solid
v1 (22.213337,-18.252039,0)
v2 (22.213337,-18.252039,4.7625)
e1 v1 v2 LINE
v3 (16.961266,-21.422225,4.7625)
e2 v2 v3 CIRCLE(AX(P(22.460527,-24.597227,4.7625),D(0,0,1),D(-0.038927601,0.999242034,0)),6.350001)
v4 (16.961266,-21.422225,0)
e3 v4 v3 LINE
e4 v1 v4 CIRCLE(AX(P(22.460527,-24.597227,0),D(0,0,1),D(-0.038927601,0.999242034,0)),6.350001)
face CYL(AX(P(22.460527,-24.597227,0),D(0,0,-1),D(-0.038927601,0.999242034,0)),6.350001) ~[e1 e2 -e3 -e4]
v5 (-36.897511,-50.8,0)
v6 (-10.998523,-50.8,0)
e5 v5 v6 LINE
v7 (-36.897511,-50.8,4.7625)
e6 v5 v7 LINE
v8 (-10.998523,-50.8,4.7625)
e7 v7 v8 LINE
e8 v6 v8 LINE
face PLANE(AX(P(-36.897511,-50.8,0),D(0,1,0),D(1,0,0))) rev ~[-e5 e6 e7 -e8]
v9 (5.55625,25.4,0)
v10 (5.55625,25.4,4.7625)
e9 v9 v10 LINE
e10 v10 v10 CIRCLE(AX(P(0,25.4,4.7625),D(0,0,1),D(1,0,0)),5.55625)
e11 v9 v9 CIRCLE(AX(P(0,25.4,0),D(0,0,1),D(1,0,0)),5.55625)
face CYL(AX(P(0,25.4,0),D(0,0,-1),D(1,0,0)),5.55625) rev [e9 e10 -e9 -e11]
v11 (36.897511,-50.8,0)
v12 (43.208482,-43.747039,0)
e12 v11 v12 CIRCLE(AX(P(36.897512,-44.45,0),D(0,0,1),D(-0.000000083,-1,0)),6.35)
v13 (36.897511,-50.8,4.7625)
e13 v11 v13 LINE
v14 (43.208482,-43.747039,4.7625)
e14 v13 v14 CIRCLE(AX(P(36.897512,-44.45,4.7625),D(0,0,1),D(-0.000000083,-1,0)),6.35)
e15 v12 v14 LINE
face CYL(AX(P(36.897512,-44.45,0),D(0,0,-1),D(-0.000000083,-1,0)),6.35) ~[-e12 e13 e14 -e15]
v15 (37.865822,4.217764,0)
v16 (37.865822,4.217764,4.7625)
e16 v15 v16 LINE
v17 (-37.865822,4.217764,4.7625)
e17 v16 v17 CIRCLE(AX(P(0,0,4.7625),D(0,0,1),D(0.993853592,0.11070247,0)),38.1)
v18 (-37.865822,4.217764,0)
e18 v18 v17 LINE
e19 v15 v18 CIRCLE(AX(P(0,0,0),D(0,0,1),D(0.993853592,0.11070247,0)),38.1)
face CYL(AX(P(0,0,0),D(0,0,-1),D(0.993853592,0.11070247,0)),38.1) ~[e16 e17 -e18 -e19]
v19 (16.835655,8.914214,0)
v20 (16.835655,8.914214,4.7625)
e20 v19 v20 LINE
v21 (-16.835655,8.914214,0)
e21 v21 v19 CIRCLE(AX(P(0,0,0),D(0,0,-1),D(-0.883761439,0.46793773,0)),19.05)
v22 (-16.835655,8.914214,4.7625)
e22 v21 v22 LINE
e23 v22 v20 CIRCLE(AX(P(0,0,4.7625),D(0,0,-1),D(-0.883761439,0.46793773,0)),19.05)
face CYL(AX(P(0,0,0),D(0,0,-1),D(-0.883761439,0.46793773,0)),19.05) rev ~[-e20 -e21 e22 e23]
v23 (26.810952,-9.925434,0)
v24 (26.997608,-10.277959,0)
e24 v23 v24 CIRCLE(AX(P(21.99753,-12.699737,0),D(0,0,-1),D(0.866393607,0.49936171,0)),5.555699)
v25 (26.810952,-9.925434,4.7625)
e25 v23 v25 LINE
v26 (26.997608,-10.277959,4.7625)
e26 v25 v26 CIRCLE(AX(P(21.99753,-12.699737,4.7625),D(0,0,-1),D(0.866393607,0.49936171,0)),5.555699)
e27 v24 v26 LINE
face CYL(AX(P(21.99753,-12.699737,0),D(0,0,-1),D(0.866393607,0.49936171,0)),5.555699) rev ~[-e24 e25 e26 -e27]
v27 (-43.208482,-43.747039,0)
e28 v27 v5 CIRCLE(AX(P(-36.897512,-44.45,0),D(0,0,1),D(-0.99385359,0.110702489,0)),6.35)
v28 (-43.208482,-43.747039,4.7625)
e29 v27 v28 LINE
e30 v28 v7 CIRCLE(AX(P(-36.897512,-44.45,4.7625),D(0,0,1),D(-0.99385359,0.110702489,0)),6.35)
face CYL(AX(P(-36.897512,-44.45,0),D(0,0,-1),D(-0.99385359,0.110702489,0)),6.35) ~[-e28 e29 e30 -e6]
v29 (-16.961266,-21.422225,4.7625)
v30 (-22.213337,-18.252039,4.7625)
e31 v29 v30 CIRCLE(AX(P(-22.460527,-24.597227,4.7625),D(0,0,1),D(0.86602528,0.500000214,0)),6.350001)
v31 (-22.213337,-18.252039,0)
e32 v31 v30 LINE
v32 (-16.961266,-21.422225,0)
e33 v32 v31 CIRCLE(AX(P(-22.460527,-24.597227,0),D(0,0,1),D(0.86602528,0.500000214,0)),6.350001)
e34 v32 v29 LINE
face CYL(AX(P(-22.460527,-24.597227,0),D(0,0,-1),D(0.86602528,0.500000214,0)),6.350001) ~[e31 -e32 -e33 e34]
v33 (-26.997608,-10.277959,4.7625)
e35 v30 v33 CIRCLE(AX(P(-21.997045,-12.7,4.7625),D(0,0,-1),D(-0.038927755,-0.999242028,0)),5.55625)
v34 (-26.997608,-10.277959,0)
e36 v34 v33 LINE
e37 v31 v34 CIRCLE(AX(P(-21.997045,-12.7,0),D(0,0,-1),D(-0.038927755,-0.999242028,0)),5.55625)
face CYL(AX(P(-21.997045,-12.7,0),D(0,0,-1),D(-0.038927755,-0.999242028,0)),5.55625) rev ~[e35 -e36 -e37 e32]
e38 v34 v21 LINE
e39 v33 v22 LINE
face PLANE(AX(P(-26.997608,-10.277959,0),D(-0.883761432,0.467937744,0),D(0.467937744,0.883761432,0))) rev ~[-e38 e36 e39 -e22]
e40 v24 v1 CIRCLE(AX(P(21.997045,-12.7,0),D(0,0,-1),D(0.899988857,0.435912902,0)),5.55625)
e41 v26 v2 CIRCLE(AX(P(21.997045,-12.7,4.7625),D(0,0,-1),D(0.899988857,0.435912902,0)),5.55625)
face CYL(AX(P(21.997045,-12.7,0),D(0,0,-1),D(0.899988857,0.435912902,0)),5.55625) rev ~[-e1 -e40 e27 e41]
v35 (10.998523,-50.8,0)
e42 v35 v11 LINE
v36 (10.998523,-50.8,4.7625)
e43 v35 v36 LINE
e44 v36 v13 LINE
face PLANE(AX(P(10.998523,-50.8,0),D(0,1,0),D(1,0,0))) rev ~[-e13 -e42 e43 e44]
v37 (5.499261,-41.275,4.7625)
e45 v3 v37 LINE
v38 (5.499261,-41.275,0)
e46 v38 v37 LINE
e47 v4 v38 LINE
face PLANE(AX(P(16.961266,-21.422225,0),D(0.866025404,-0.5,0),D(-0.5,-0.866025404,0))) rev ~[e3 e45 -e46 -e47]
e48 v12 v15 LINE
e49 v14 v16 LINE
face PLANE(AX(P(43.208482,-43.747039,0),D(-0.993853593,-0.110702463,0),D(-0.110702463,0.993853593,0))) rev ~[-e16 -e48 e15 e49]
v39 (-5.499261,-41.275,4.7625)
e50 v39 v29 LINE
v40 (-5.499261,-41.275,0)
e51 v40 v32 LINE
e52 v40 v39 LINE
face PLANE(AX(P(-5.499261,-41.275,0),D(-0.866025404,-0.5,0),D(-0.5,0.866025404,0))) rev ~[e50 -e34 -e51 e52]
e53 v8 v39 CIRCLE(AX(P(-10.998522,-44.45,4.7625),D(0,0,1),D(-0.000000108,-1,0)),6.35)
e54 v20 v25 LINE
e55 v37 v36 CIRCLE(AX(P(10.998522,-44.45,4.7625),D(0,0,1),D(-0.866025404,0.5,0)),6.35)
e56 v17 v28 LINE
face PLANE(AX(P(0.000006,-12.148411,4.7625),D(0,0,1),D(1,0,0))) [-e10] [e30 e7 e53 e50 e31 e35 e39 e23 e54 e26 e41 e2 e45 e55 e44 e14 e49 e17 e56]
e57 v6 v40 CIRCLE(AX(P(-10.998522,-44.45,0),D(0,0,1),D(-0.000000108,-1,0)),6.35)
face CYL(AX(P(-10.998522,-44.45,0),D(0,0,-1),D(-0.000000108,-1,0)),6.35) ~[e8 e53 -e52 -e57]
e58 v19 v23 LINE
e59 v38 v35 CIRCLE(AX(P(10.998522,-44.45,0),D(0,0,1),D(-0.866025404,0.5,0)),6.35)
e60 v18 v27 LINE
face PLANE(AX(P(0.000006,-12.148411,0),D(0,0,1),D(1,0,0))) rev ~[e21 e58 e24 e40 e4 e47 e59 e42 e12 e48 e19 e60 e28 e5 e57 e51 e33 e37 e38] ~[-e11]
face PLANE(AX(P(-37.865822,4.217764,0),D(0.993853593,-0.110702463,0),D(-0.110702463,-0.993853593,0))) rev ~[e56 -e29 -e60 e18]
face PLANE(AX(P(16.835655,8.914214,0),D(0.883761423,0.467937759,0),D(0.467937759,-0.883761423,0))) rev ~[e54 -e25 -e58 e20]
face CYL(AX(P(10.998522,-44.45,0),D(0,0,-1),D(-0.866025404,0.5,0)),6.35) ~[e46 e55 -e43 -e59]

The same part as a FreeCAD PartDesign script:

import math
import FreeCAD as App
import Part
import Sketcher
Q = App.Units.Quantity

doc = App.newDocument("Part")
params = doc.addObject("Spreadsheet::Sheet", "Params")
for row, (alias, value) in enumerate([
    ("sketch1_radius", "1.5 in"),
    ("sketch1_radius2", "0.25 in"),
    ("sketch1_radius3", "0.75 in"),
    ("sketch1_diameter", "0.4375 in"),
    ("pad1_length", "0.1875 in"),
], start=1):
    params.set(f"A{row}", alias)
    params.set(f"B{row}", "=" + value)
    params.setAlias(f"B{row}", alias)

body = doc.addObject("PartDesign::Body", "Body")

# Sketch on XY plane
sketch1 = body.newObject("Sketcher::SketchObject", "Sketch")
sketch1.AttachmentSupport = (doc.getObject("XY_Plane"), [""])
sketch1.MapMode = "FlatFace"
sketch1.addGeometry([
    Part.LineSegment(App.Vector(43.21, -43.75, 0), App.Vector(37.87, 4.22, 0)),  # 0
    Part.ArcOfCircle(Part.Circle(App.Vector(0, 0, 0), App.Vector(0, 0, 1), 38.1), math.radians(6), math.radians(174)),  # 1
    Part.LineSegment(App.Vector(-37.87, 4.22, 0), App.Vector(-43.21, -43.75, 0)),  # 2
    Part.ArcOfCircle(Part.Circle(App.Vector(-36.9, -44.45, 0), App.Vector(0, 0, 1), 6.35), math.radians(174), math.radians(270)),  # 3
    Part.LineSegment(App.Vector(-36.9, -50.8, 0), App.Vector(-11, -50.8, 0)),  # 4
    Part.ArcOfCircle(Part.Circle(App.Vector(-11, -44.45, 0), App.Vector(0, 0, 1), 6.35), math.radians(-90), math.radians(30)),  # 5
    Part.LineSegment(App.Vector(-5.5, -41.27, 0), App.Vector(-16.96, -21.42, 0)),  # 6
    Part.ArcOfCircle(Part.Circle(App.Vector(-22.46, -24.6, 0), App.Vector(0, 0, 1), 6.35), math.radians(30), math.radians(88)),  # 7
    Part.ArcOfCircle(Part.Circle(App.Vector(-22, -12.7, 0), App.Vector(0, 0, 1), 5.56), math.radians(154), math.radians(268)),  # 8
    Part.LineSegment(App.Vector(-27, -10.28, 0), App.Vector(-16.84, 8.91, 0)),  # 9
    Part.ArcOfCircle(Part.Circle(App.Vector(0, 0, 0), App.Vector(0, 0, 1), 19.05), math.radians(28), math.radians(152)),  # 10
    Part.LineSegment(App.Vector(16.84, 8.91, 0), App.Vector(26.81, -9.93, 0)),  # 11
    Part.ArcOfCircle(Part.Circle(App.Vector(22, -12.7, 0), App.Vector(0, 0, 1), 5.56), math.radians(25.84), math.radians(29.96)),  # 12
    Part.ArcOfCircle(Part.Circle(App.Vector(22, -12.7, 0), App.Vector(0, 0, 1), 5.56), math.radians(-88), math.radians(26)),  # 13
    Part.ArcOfCircle(Part.Circle(App.Vector(22.46, -24.6, 0), App.Vector(0, 0, 1), 6.35), math.radians(92), math.radians(150)),  # 14
    Part.LineSegment(App.Vector(16.96, -21.42, 0), App.Vector(5.5, -41.27, 0)),  # 15
    Part.ArcOfCircle(Part.Circle(App.Vector(11, -44.45, 0), App.Vector(0, 0, 1), 6.35), math.radians(150), math.radians(270)),  # 16
    Part.LineSegment(App.Vector(11, -50.8, 0), App.Vector(36.9, -50.8, 0)),  # 17
    Part.ArcOfCircle(Part.Circle(App.Vector(36.9, -44.45, 0), App.Vector(0, 0, 1), 6.35), math.radians(-90), math.radians(6)),  # 18
    Part.Circle(App.Vector(0, 25.4, 0), App.Vector(0, 0, 1), 5.56),  # 19
], False)
sketch1.addConstraint([
    Sketcher.Constraint("Tangent", 0, 2, 1, 1),
    Sketcher.Constraint("Tangent", 1, 2, 2, 1),
    Sketcher.Constraint("Tangent", 2, 2, 3, 1),
    Sketcher.Constraint("Tangent", 3, 2, 4, 1),
    Sketcher.Constraint("Tangent", 4, 2, 5, 1),
    Sketcher.Constraint("Tangent", 5, 2, 6, 1),
    Sketcher.Constraint("Tangent", 6, 2, 7, 1),
    Sketcher.Constraint("Tangent", 7, 2, 8, 2),
    Sketcher.Constraint("Coincident", 8, 1, 9, 1),
    Sketcher.Constraint("Tangent", 9, 2, 10, 2),
    Sketcher.Constraint("Tangent", 10, 1, 11, 1),
    Sketcher.Constraint("Coincident", 11, 2, 12, 2),
    Sketcher.Constraint("Coincident", 12, 1, 13, 2),
    Sketcher.Constraint("Tangent", 13, 1, 14, 1),
    Sketcher.Constraint("Tangent", 14, 2, 15, 1),
    Sketcher.Constraint("Tangent", 15, 2, 16, 1),
    Sketcher.Constraint("Tangent", 16, 2, 17, 1),
    Sketcher.Constraint("Tangent", 17, 2, 18, 1),
    Sketcher.Constraint("Tangent", 18, 2, 0, 1),
    Sketcher.Constraint("Horizontal", 4),
    Sketcher.Constraint("Horizontal", 17),
    Sketcher.Constraint("Coincident", 1, 3, -1, 1),
    Sketcher.Constraint("Coincident", 10, 3, -1, 1),
    Sketcher.Constraint("Equal", 3, 5),
    Sketcher.Constraint("Equal", 5, 7),
    Sketcher.Constraint("Equal", 8, 13),
    Sketcher.Constraint("Equal", 7, 14),
    Sketcher.Constraint("Equal", 14, 16),
    Sketcher.Constraint("Equal", 16, 18),
    Sketcher.Constraint("Equal", 13, 19),
    Sketcher.Constraint("Symmetric", 8, 3, 13, 3, -2),
    Sketcher.Constraint("Symmetric", 5, 3, 16, 3, -2),
    Sketcher.Constraint("PointOnObject", 19, 3, -2),
    Sketcher.Constraint("Horizontal", 7, 3, 14, 3),
    Sketcher.Constraint("Horizontal", 0, 2, 1, 2),
    Sketcher.Constraint("Horizontal", 9, 2, 10, 1),
    Sketcher.Constraint("Horizontal", 8, 1, 12, 1),
    Sketcher.Constraint("Radius", 1, Q("1.5 in")),
    Sketcher.Constraint("Radius", 3, Q("0.25 in")),
    Sketcher.Constraint("Radius", 10, Q("0.75 in")),
    Sketcher.Constraint("Diameter", 19, Q("0.4375 in")),
    Sketcher.Constraint("DistanceY", -1, 1, 19, 3, Q("1 in")),
    Sketcher.Constraint("DistanceY", 3, 2, -1, 1, Q("2 in")),
    Sketcher.Constraint("Angle", 6, Q("120 deg")),
    Sketcher.Constraint("DistanceY", 8, 3, -1, 1, Q("0.5 in")),
    Sketcher.Constraint("Radius", 12, Q("5.555699 mm")),
    Sketcher.Constraint("DistanceX", 4, 1, 4, 2, Q("25.898988 mm")),
    Sketcher.Constraint("DistanceY", 12, 3, 0, 2, Q("16.917501 mm")),
    Sketcher.Constraint("DistanceY", 13, 1, 12, 3, Q("5.552302 mm")),
    Sketcher.Constraint("Distance", 6, Q("22.92401 mm")),
    Sketcher.Constraint("DistanceY", 8, 1, -1, 1, Q("10.277959 mm")),
])
sketch1.setExpression("Constraints[37]", "Params.sketch1_radius")
sketch1.setExpression("Constraints[38]", "Params.sketch1_radius2")
sketch1.setExpression("Constraints[39]", "Params.sketch1_radius3")
sketch1.setExpression("Constraints[40]", "Params.sketch1_diameter")
pad1 = body.newObject("PartDesign::Pad", "Pad")
pad1.Profile = sketch1
pad1.setExpression("Length", "Params.pad1_length")

doc.recompute()
